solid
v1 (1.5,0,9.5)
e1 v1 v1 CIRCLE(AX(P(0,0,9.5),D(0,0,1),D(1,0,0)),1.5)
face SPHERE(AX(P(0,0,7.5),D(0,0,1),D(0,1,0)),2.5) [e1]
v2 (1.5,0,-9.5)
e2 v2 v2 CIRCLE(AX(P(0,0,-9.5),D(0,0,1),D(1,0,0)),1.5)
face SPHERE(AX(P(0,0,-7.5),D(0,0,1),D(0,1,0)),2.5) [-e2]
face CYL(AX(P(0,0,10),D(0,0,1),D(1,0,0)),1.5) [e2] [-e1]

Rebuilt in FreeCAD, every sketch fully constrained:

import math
import FreeCAD as App
import Part
import Sketcher

V = App.Vector
Q = App.Units.Quantity

doc = App.newDocument("Part")
params = doc.addObject("Spreadsheet::Sheet", "Params")
for row, (alias, value) in enumerate([
    ("sketch1_radius", "2.5 mm"),
    ("sketch1_height", "19 mm"),
    ("sketch1_height2", "20 mm"),
    ("revolution_angle", "360 deg"),
], start=1):
    params.set(f"A{row}", alias)
    params.set(f"B{row}", "=" + value)
    params.setAlias(f"B{row}", alias)

body = doc.addObject("PartDesign::Body", "Body")

# Sketch on YZ plane
sketch1 = body.newObject("Sketcher::SketchObject", "Sketch")
sketch1.AttachmentSupport = (doc.getObject("YZ_Plane"), [""])
sketch1.MapMode = "FlatFace"
sketch1.addGeometry([
    Part.LineSegment(V(1.5, -9.5, 0), V(1.5, 9.5, 0)),
    Part.ArcOfCircle(Part.Circle(V(0, 7.5, 0), V(0, 0, 1), 2.5), math.radians(53), math.radians(90)),
    Part.LineSegment(V(0, 10, 0), V(0, -10, 0)),
    Part.ArcOfCircle(Part.Circle(V(0, -7.5, 0), V(0, 0, 1), 2.5), math.radians(-90), math.radians(-53)),
], False)
sketch1.addConstraint([
    Sketcher.Constraint("Coincident", 0, 2, 1, 1),
    Sketcher.Constraint("Coincident", 1, 2, 2, 1),
    Sketcher.Constraint("Coincident", 2, 2, 3, 1),
    Sketcher.Constraint("Coincident", 3, 2, 0, 1),
    Sketcher.Constraint("Vertical", 0),
    Sketcher.Constraint("Vertical", 2),
    Sketcher.Constraint("Equal", 1, 3),
    Sketcher.Constraint("Symmetric", 1, 3, 3, 3, -1, 1),
    Sketcher.Constraint("PointOnObject", 1, 3, -2),
    Sketcher.Constraint("PointOnObject", 1, 2, -2),
    Sketcher.Constraint("Radius", 1, Q("2.5 mm")),
    Sketcher.Constraint("DistanceY", 0, 1, 0, 2, Q("19 mm")),
    Sketcher.Constraint("DistanceY", 2, 2, 2, 1, Q("20 mm")),
])
sketch1.setExpression("Constraints[10]", "Params.sketch1_radius")
sketch1.setExpression("Constraints[11]", "Params.sketch1_height")
sketch1.setExpression("Constraints[12]", "Params.sketch1_height2")
revolution = body.newObject("PartDesign::Revolution", "Revolution")
revolution.Profile = sketch1
revolution.ReferenceAxis = (sketch1, ["V_Axis"])
revolution.setExpression("Angle", "Params.revolution_angle")

doc.recompute()
